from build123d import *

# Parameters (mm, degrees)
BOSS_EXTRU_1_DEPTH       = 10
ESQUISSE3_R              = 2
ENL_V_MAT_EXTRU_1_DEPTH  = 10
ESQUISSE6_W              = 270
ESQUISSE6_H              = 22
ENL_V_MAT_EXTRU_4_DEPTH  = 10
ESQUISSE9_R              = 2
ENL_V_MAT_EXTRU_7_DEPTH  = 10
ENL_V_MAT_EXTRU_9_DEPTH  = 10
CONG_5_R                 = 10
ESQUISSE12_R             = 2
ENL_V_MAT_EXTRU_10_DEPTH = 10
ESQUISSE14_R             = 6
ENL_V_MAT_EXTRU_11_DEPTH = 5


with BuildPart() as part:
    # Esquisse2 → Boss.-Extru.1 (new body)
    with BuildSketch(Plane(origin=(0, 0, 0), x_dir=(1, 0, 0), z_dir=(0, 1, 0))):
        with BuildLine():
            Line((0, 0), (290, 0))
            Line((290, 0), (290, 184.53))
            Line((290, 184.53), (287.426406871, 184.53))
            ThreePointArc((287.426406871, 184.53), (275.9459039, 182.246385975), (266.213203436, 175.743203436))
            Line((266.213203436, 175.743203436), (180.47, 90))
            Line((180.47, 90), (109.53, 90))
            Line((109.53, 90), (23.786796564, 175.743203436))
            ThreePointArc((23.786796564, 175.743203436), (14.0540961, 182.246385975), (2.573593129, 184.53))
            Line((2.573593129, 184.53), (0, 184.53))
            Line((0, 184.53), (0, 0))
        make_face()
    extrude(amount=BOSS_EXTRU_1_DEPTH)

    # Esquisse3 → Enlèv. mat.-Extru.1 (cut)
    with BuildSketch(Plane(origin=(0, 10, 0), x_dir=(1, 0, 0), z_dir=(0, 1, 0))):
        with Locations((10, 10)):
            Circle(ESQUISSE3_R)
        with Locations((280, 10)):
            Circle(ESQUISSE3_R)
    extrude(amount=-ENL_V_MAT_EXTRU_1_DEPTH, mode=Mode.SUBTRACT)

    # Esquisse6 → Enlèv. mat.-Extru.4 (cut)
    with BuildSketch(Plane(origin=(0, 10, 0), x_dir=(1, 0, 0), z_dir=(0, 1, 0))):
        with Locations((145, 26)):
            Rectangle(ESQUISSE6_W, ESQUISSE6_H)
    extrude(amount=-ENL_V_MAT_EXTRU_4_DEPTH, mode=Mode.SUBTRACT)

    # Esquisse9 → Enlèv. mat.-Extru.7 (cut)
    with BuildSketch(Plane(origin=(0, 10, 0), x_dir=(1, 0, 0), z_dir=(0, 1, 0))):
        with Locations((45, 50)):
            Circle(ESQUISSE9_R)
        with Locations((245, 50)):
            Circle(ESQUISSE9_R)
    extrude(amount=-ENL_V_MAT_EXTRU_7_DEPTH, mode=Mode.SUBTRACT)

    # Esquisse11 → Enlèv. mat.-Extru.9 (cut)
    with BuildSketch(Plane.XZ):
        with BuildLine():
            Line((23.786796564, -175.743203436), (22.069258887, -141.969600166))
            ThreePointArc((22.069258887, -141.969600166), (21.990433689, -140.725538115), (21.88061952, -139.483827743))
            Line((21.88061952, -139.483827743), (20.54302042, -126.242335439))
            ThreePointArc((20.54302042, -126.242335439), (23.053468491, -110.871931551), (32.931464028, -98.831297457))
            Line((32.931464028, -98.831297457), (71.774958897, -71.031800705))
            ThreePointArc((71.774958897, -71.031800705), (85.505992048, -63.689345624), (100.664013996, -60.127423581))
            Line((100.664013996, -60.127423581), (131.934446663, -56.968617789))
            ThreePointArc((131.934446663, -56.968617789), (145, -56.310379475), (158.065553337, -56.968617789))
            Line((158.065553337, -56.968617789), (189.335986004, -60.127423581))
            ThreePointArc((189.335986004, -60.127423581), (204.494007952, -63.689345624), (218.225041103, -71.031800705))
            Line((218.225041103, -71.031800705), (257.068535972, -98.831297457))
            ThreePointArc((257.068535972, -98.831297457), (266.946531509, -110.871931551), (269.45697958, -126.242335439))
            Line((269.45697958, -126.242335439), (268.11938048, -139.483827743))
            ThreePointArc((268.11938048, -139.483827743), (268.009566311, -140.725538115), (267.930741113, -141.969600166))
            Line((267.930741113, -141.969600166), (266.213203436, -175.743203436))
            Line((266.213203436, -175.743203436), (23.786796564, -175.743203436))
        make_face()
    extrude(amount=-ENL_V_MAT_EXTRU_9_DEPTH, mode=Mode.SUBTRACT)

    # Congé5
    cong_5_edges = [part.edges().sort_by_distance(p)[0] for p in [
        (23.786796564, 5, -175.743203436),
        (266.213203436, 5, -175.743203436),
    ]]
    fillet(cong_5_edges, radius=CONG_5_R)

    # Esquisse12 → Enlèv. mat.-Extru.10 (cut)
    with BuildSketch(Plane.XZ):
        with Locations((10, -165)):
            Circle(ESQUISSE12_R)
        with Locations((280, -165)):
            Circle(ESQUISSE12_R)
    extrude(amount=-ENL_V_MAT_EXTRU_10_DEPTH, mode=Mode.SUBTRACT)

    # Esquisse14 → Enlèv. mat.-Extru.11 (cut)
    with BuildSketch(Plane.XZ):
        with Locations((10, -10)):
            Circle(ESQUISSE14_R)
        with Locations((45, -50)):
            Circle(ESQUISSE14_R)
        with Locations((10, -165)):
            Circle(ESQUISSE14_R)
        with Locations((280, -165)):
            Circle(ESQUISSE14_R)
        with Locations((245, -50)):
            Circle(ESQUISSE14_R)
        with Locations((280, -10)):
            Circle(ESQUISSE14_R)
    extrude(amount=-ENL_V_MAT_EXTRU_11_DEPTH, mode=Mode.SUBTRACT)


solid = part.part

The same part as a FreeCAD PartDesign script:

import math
import FreeCAD as App
import Part
import Sketcher
Q = App.Units.Quantity


def edges_at(feature, points):
    """Names of the edges that pass closest to the given points."""
    edges = feature.Shape.Edges
    near = lambda p: min(range(len(edges)), key=lambda i: edges[i].distToShape(Part.Vertex(*p))[0])
    return sorted({f"Edge{near(p) + 1}" for p in points})

doc = App.newDocument("Part")
body = doc.addObject("PartDesign::Body", "Body")

sketch1 = body.newObject("Sketcher::SketchObject", "Sketch")
sketch1.AttachmentSupport = (doc.getObject("XZ_Plane"), [""])
sketch1.MapMode = "FlatFace"
sketch1.addGeometry(Part.LineSegment(App.Vector(0, 0, 0), App.Vector(290, 0, 0)), False)
sketch1.addGeometry(Part.LineSegment(App.Vector(290, 0, 0), App.Vector(290, -184.5, 0)), False)
sketch1.addGeometry(Part.LineSegment(App.Vector(290, -184.5, 0), App.Vector(287.4, -184.5, 0)), False)
sketch1.addGeometry(Part.ArcOfCircle(Part.Circle(App.Vector(287.4, -154.5, 0), App.Vector(0, 0, 1), 30), math.radians(-135), math.radians(-90)), False)
sketch1.addGeometry(Part.LineSegment(App.Vector(266.2, -175.7, 0), App.Vector(180.5, -90, 0)), False)
sketch1.addGeometry(Part.LineSegment(App.Vector(180.5, -90, 0), App.Vector(109.5, -90, 0)), False)
sketch1.addGeometry(Part.LineSegment(App.Vector(109.5, -90, 0), App.Vector(23.8, -175.7, 0)), False)
sketch1.addGeometry(Part.ArcOfCircle(Part.Circle(App.Vector(2.6, -154.5, 0), App.Vector(0, 0, 1), 30), math.radians(-90), math.radians(-45)), False)
sketch1.addGeometry(Part.LineSegment(App.Vector(2.6, -184.5, 0), App.Vector(0, -184.5, 0)), False)
sketch1.addGeometry(Part.LineSegment(App.Vector(0, -184.5, 0), App.Vector(0, 0, 0)), False)
sketch1.addConstraint(Sketcher.Constraint("Coincident", 0, 2, 1, 1))
sketch1.addConstraint(Sketcher.Constraint("Coincident", 1, 2, 2, 1))
sketch1.addConstraint(Sketcher.Constraint("Tangent", 2, 2, 3, 2))
sketch1.addConstraint(Sketcher.Constraint("Tangent", 3, 1, 4, 1))
sketch1.addConstraint(Sketcher.Constraint("Coincident", 4, 2, 5, 1))
sketch1.addConstraint(Sketcher.Constraint("Coincident", 5, 2, 6, 1))
sketch1.addConstraint(Sketcher.Constraint("Tangent", 6, 2, 7, 2))
sketch1.addConstraint(Sketcher.Constraint("Tangent", 7, 1, 8, 1))
sketch1.addConstraint(Sketcher.Constraint("Coincident", 8, 2, 9, 1))
sketch1.addConstraint(Sketcher.Constraint("Coincident", 9, 2, 0, 1))
sketch1.addConstraint(Sketcher.Constraint("Horizontal", 0))
sketch1.addConstraint(Sketcher.Constraint("Vertical", 1))
sketch1.addConstraint(Sketcher.Constraint("Horizontal", 2))
sketch1.addConstraint(Sketcher.Constraint("Horizontal", 5))
sketch1.addConstraint(Sketcher.Constraint("Horizontal", 8))
sketch1.addConstraint(Sketcher.Constraint("Vertical", 9))
sketch1.addConstraint(Sketcher.Constraint("Coincident", 9, 2, -1, 1))
sketch1.addConstraint(Sketcher.Constraint("Equal", 3, 7))
sketch1.addConstraint(Sketcher.Constraint("Perpendicular", 4, 6))
sketch1.addConstraint(Sketcher.Constraint("Horizontal", 3, 3, 7, 3))
sketch1.addConstraint(Sketcher.Constraint("Horizontal", 3, 1, 6, 2))
sketch1.addConstraint(Sketcher.Constraint("Equal", 2, 8))
sketch1.addConstraint(Sketcher.Constraint("Radius", 3, Q("30 mm")))
sketch1.addConstraint(Sketcher.Constraint("DistanceX", 0, 1, 0, 2, Q("290 mm")))
sketch1.addConstraint(Sketcher.Constraint("DistanceY", 4, 2, -1, 1, Q("90 mm")))
sketch1.addConstraint(Sketcher.Constraint("DistanceX", 5, 2, 5, 1, Q("70.94 mm")))
sketch1.addConstraint(Sketcher.Constraint("DistanceY", 1, 2, 1, 1, Q("184.53 mm")))
pad1 = body.newObject("PartDesign::Pad", "Pad")
pad1.Profile = sketch1
pad1.Length = 10
pad1.Reversed = True

sketch2 = body.newObject("Sketcher::SketchObject", "Sketch001")
sketch2.AttachmentSupport = (doc.getObject("XZ_Plane"), [""])
sketch2.MapMode = "FlatFace"
sketch2.AttachmentOffset = App.Placement(App.Vector(0, 0, -10), App.Rotation())
sketch2.addGeometry(Part.Circle(App.Vector(10, -10, 0), App.Vector(0, 0, 1), 2), False)
sketch2.addGeometry(Part.Circle(App.Vector(280, -10, 0), App.Vector(0, 0, 1), 2), False)
sketch2.addConstraint(Sketcher.Constraint("Equal", 0, 1))
sketch2.addConstraint(Sketcher.Constraint("Horizontal", 0, 3, 1, 3))
sketch2.addConstraint(Sketcher.Constraint("Diameter", 0, Q("4 mm")))
sketch2.addConstraint(Sketcher.Constraint("DistanceX", -1, 1, 0, 3, Q("10 mm")))
sketch2.addConstraint(Sketcher.Constraint("DistanceY", 0, 3, -1, 1, Q("10 mm")))
sketch2.addConstraint(Sketcher.Constraint("DistanceX", -1, 1, 1, 3, Q("280 mm")))
pocket1 = body.newObject("PartDesign::Pocket", "Pocket")
pocket1.Profile = sketch2
pocket1.Length = 10
pocket1.Reversed = True

sketch3 = body.newObject("Sketcher::SketchObject", "Sketch002")
sketch3.AttachmentSupport = (doc.getObject("XZ_Plane"), [""])
sketch3.MapMode = "FlatFace"
sketch3.AttachmentOffset = App.Placement(App.Vector(0, 0, -10), App.Rotation())
sketch3.addGeometry(Part.LineSegment(App.Vector(10, -37, 0), App.Vector(10, -15, 0)), False)
sketch3.addGeometry(Part.LineSegment(App.Vector(10, -15, 0), App.Vector(280, -15, 0)), False)
sketch3.addGeometry(Part.LineSegment(App.Vector(280, -15, 0), App.Vector(280, -37, 0)), False)
sketch3.addGeometry(Part.LineSegment(App.Vector(280, -37, 0), App.Vector(10, -37, 0)), False)
sketch3.addConstraint(Sketcher.Constraint("Coincident", 0, 2, 1, 1))
sketch3.addConstraint(Sketcher.Constraint("Coincident", 1, 2, 2, 1))
sketch3.addConstraint(Sketcher.Constraint("Coincident", 2, 2, 3, 1))
sketch3.addConstraint(Sketcher.Constraint("Coincident", 3, 2, 0, 1))
sketch3.addConstraint(Sketcher.Constraint("Vertical", 0))
sketch3.addConstraint(Sketcher.Constraint("Horizontal", 1))
sketch3.addConstraint(Sketcher.Constraint("Vertical", 2))
sketch3.addConstraint(Sketcher.Constraint("Horizontal", 3))
sketch3.addConstraint(Sketcher.Constraint("DistanceX", 1, 1, 1, 2, Q("270 mm")))
sketch3.addConstraint(Sketcher.Constraint("DistanceY", 0, 1, 0, 2, Q("22 mm")))
sketch3.addConstraint(Sketcher.Constraint("DistanceX", -1, 1, 0, 2, Q("10 mm")))
sketch3.addConstraint(Sketcher.Constraint("DistanceY", 0, 2, -1, 1, Q("15 mm")))
pocket2 = body.newObject("PartDesign::Pocket", "Pocket001")
pocket2.Profile = sketch3
pocket2.Length = 10
pocket2.Reversed = True

sketch4 = body.newObject("Sketcher::SketchObject", "Sketch003")
sketch4.AttachmentSupport = (doc.getObject("XZ_Plane"), [""])
sketch4.MapMode = "FlatFace"
sketch4.AttachmentOffset = App.Placement(App.Vector(0, 0, -10), App.Rotation())
sketch4.addGeometry(Part.Circle(App.Vector(45, -50, 0), App.Vector(0, 0, 1), 2), False)
sketch4.addGeometry(Part.Circle(App.Vector(245, -50, 0), App.Vector(0, 0, 1), 2), False)
sketch4.addConstraint(Sketcher.Constraint("Equal", 0, 1))
sketch4.addConstraint(Sketcher.Constraint("Horizontal", 0, 3, 1, 3))
sketch4.addConstraint(Sketcher.Constraint("Diameter", 0, Q("4 mm")))
sketch4.addConstraint(Sketcher.Constraint("DistanceX", -1, 1, 0, 3, Q("45 mm")))
sketch4.addConstraint(Sketcher.Constraint("DistanceY", 0, 3, -1, 1, Q("50 mm")))
sketch4.addConstraint(Sketcher.Constraint("DistanceX", -1, 1, 1, 3, Q("245 mm")))
pocket3 = body.newObject("PartDesign::Pocket", "Pocket002")
pocket3.Profile = sketch4
pocket3.Length = 10
pocket3.Reversed = True

sketch5 = body.newObject("Sketcher::SketchObject", "Sketch004")
sketch5.AttachmentSupport = (doc.getObject("XZ_Plane"), [""])
sketch5.MapMode = "FlatFace"
sketch5.addGeometry(Part.LineSegment(App.Vector(22.1, -142, 0), App.Vector(23.8, -175.7, 0)), False)
sketch5.addGeometry(Part.LineSegment(App.Vector(23.8, -175.7, 0), App.Vector(266.2, -175.7, 0)), False)
sketch5.addGeometry(Part.LineSegment(App.Vector(266.2, -175.7, 0), App.Vector(267.9, -142, 0)), False)
sketch5.addGeometry(Part.ArcOfCircle(Part.Circle(App.Vector(317.9, -144.5, 0), App.Vector(0, 0, 1), 50), math.radians(174.23), math.radians(177.09)), False)
sketch5.addGeometry(Part.LineSegment(App.Vector(268.1, -139.5, 0), App.Vector(269.5, -126.2, 0)), False)
sketch5.addGeometry(Part.ArcOfCircle(Part.Circle(App.Vector(239.6, -123.2, 0), App.Vector(0, 0, 1), 30), math.radians(-6), math.radians(54)), False)
sketch5.addGeometry(Part.LineSegment(App.Vector(257.1, -98.8, 0), App.Vector(218.2, -71, 0)), False)
sketch5.addGeometry(Part.ArcOfCircle(Part.Circle(App.Vector(183.3, -119.8, 0), App.Vector(0, 0, 1), 60), math.radians(54), math.radians(84)), False)
sketch5.addGeometry(Part.LineSegment(App.Vector(189.3, -60.1, 0), App.Vector(158.1, -57, 0)), False)
sketch5.addGeometry(Part.ArcOfCircle(Part.Circle(App.Vector(145, -186.3, 0), App.Vector(0, 0, 1), 130), math.radians(84.23), math.radians(95.77)), False)
sketch5.addGeometry(Part.LineSegment(App.Vector(131.9, -57, 0), App.Vector(100.7, -60.1, 0)), False)
sketch5.addGeometry(Part.ArcOfCircle(Part.Circle(App.Vector(106.7, -119.8, 0), App.Vector(0, 0, 1), 60), math.radians(96), math.radians(126)), False)
sketch5.addGeometry(Part.LineSegment(App.Vector(71.8, -71, 0), App.Vector(32.9, -98.8, 0)), False)
sketch5.addGeometry(Part.ArcOfCircle(Part.Circle(App.Vector(50.4, -123.2, 0), App.Vector(0, 0, 1), 30), math.radians(126), math.radians(186)), False)
sketch5.addGeometry(Part.LineSegment(App.Vector(20.5, -126.2, 0), App.Vector(21.9, -139.5, 0)), False)
sketch5.addGeometry(Part.ArcOfCircle(Part.Circle(App.Vector(-27.9, -144.5, 0), App.Vector(0, 0, 1), 50), math.radians(2.91), math.radians(5.77)), False)
sketch5.addConstraint(Sketcher.Constraint("Coincident", 0, 2, 1, 1))
sketch5.addConstraint(Sketcher.Constraint("Coincident", 1, 2, 2, 1))
sketch5.addConstraint(Sketcher.Constraint("Tangent", 2, 2, 3, 2))
sketch5.addConstraint(Sketcher.Constraint("Tangent", 3, 1, 4, 1))
sketch5.addConstraint(Sketcher.Constraint("Tangent", 4, 2, 5, 1))
sketch5.addConstraint(Sketcher.Constraint("Tangent", 5, 2, 6, 1))
sketch5.addConstraint(Sketcher.Constraint("Tangent", 6, 2, 7, 1))
sketch5.addConstraint(Sketcher.Constraint("Tangent", 7, 2, 8, 1))
sketch5.addConstraint(Sketcher.Constraint("Tangent", 8, 2, 9, 1))
sketch5.addConstraint(Sketcher.Constraint("Tangent", 9, 2, 10, 1))
sketch5.addConstraint(Sketcher.Constraint("Tangent", 10, 2, 11, 1))
sketch5.addConstraint(Sketcher.Constraint("Tangent", 11, 2, 12, 1))
sketch5.addConstraint(Sketcher.Constraint("Tangent", 12, 2, 13, 1))
sketch5.addConstraint(Sketcher.Constraint("Tangent", 13, 2, 14, 1))
sketch5.addConstraint(Sketcher.Constraint("Tangent", 14, 2, 15, 2))
sketch5.addConstraint(Sketcher.Constraint("Tangent", 15, 1, 0, 1))
sketch5.addConstraint(Sketcher.Constraint("Horizontal", 1))
sketch5.addConstraint(Sketcher.Constraint("Equal", 7, 11))
sketch5.addConstraint(Sketcher.Constraint("Equal", 5, 13))
sketch5.addConstraint(Sketcher.Constraint("Equal", 3, 15))
sketch5.addConstraint(Sketcher.Constraint("Perpendicular", 4, 8))
sketch5.addConstraint(Sketcher.Constraint("Perpendicular", 10, 14))
sketch5.addConstraint(Sketcher.Constraint("Horizontal", 7, 3, 11, 3))
sketch5.addConstraint(Sketcher.Constraint("Horizontal", 5, 3, 13, 3))
sketch5.addConstraint(Sketcher.Constraint("Horizontal", 3, 3, 15, 3))
sketch5.addConstraint(Sketcher.Constraint("Horizontal", 8, 2, 9, 2))
sketch5.addConstraint(Sketcher.Constraint("Horizontal", 6, 2, 11, 2))
sketch5.addConstraint(Sketcher.Constraint("Horizontal", 2, 2, 15, 1))
sketch5.addConstraint(Sketcher.Constraint("Radius", 5, Q("30 mm")))
sketch5.addConstraint(Sketcher.Constraint("Radius", 7, Q("60 mm")))
sketch5.addConstraint(Sketcher.Constraint("Radius", 9, Q("130 mm")))
sketch5.addConstraint(Sketcher.Constraint("DistanceX", -1, 1, 9, 3, Q("145 mm")))
sketch5.addConstraint(Sketcher.Constraint("Radius", 3, Q("50.000002 mm")))
sketch5.addConstraint(Sketcher.Constraint("Distance", 6, Q("47.766402 mm")))
sketch5.addConstraint(Sketcher.Constraint("DistanceY", 2, 2, -1, 1, Q("141.9696 mm")))
sketch5.addConstraint(Sketcher.Constraint("DistanceY", 6, 2, -1, 1, Q("71.031801 mm")))
sketch5.addConstraint(Sketcher.Constraint("DistanceX", 5, 3, 3, 1, Q("28.5105 mm")))
sketch5.addConstraint(Sketcher.Constraint("DistanceX", 5, 3, 4, 2, Q("29.848099 mm")))
sketch5.addConstraint(Sketcher.Constraint("DistanceX", 1, 1, 1, 2, Q("242.426407 mm")))
sketch5.addConstraint(Sketcher.Constraint("DistanceY", 3, 3, -1, 1, Q("144.509041 mm")))
sketch5.addConstraint(Sketcher.Constraint("DistanceX", -1, 1, 5, 3, Q("239.608881 mm")))
pocket4 = body.newObject("PartDesign::Pocket", "Pocket003")
pocket4.Profile = sketch5
pocket4.Length = 10
doc.recompute()

fillet = body.newObject("PartDesign::Fillet", "Fillet")
fillet.Base = (pocket4, edges_at(pocket4, [(23.787, 5, -175.743), (266.213, 5, -175.743)]))
fillet.Radius = 10

sketch6 = body.newObject("Sketcher::SketchObject", "Sketch005")
sketch6.AttachmentSupport = (doc.getObject("XZ_Plane"), [""])
sketch6.MapMode = "FlatFace"
sketch6.addGeometry(Part.Circle(App.Vector(10, -165, 0), App.Vector(0, 0, 1), 2), False)
sketch6.addGeometry(Part.Circle(App.Vector(280, -165, 0), App.Vector(0, 0, 1), 2), False)
sketch6.addConstraint(Sketcher.Constraint("Equal", 0, 1))
sketch6.addConstraint(Sketcher.Constraint("Horizontal", 0, 3, 1, 3))
sketch6.addConstraint(Sketcher.Constraint("Diameter", 0, Q("4 mm")))
sketch6.addConstraint(Sketcher.Constraint("DistanceX", -1, 1, 0, 3, Q("10 mm")))
sketch6.addConstraint(Sketcher.Constraint("DistanceY", 0, 3, -1, 1, Q("165 mm")))
sketch6.addConstraint(Sketcher.Constraint("DistanceX", -1, 1, 1, 3, Q("280 mm")))
pocket5 = body.newObject("PartDesign::Pocket", "Pocket004")
pocket5.Profile = sketch6
pocket5.Length = 10

sketch7 = body.newObject("Sketcher::SketchObject", "Sketch006")
sketch7.AttachmentSupport = (doc.getObject("XZ_Plane"), [""])
sketch7.MapMode = "FlatFace"
sketch7.addGeometry(Part.Circle(App.Vector(10, -10, 0), App.Vector(0, 0, 1), 6), False)
sketch7.addGeometry(Part.Circle(App.Vector(45, -50, 0), App.Vector(0, 0, 1), 6), False)
sketch7.addGeometry(Part.Circle(App.Vector(10, -165, 0), App.Vector(0, 0, 1), 6), False)
sketch7.addGeometry(Part.Circle(App.Vector(280, -165, 0), App.Vector(0, 0, 1), 6), False)
sketch7.addGeometry(Part.Circle(App.Vector(245, -50, 0), App.Vector(0, 0, 1), 6), False)
sketch7.addGeometry(Part.Circle(App.Vector(280, -10, 0), App.Vector(0, 0, 1), 6), False)
sketch7.addConstraint(Sketcher.Constraint("Equal", 0, 1))
sketch7.addConstraint(Sketcher.Constraint("Equal", 1, 2))
sketch7.addConstraint(Sketcher.Constraint("Equal", 2, 3))
sketch7.addConstraint(Sketcher.Constraint("Equal", 3, 4))
sketch7.addConstraint(Sketcher.Constraint("Equal", 4, 5))
sketch7.addConstraint(Sketcher.Constraint("Horizontal", 2, 3, 3, 3))
sketch7.addConstraint(Sketcher.Constraint("Horizontal", 1, 3, 4, 3))
sketch7.addConstraint(Sketcher.Constraint("Horizontal", 0, 3, 5, 3))
sketch7.addConstraint(Sketcher.Constraint("Vertical", 0, 3, 2, 3))
sketch7.addConstraint(Sketcher.Constraint("Vertical", 3, 3, 5, 3))
sketch7.addConstraint(Sketcher.Constraint("Diameter", 0, Q("12 mm")))
sketch7.addConstraint(Sketcher.Constraint("DistanceX", -1, 1, 0, 3, Q("10 mm")))
sketch7.addConstraint(Sketcher.Constraint("DistanceY", 0, 3, -1, 1, Q("10 mm")))
sketch7.addConstraint(Sketcher.Constraint("DistanceX", -1, 1, 1, 3, Q("45 mm")))
sketch7.addConstraint(Sketcher.Constraint("DistanceY", 1, 3, -1, 1, Q("50 mm")))
sketch7.addConstraint(Sketcher.Constraint("DistanceY", 2, 3, -1, 1, Q("165 mm")))
sketch7.addConstraint(Sketcher.Constraint("DistanceX", -1, 1, 3, 3, Q("280 mm")))
sketch7.addConstraint(Sketcher.Constraint("DistanceX", -1, 1, 4, 3, Q("245 mm")))
pocket6 = body.newObject("PartDesign::Pocket", "Pocket005")
pocket6.Profile = sketch7
pocket6.Length = 5

doc.recompute()
